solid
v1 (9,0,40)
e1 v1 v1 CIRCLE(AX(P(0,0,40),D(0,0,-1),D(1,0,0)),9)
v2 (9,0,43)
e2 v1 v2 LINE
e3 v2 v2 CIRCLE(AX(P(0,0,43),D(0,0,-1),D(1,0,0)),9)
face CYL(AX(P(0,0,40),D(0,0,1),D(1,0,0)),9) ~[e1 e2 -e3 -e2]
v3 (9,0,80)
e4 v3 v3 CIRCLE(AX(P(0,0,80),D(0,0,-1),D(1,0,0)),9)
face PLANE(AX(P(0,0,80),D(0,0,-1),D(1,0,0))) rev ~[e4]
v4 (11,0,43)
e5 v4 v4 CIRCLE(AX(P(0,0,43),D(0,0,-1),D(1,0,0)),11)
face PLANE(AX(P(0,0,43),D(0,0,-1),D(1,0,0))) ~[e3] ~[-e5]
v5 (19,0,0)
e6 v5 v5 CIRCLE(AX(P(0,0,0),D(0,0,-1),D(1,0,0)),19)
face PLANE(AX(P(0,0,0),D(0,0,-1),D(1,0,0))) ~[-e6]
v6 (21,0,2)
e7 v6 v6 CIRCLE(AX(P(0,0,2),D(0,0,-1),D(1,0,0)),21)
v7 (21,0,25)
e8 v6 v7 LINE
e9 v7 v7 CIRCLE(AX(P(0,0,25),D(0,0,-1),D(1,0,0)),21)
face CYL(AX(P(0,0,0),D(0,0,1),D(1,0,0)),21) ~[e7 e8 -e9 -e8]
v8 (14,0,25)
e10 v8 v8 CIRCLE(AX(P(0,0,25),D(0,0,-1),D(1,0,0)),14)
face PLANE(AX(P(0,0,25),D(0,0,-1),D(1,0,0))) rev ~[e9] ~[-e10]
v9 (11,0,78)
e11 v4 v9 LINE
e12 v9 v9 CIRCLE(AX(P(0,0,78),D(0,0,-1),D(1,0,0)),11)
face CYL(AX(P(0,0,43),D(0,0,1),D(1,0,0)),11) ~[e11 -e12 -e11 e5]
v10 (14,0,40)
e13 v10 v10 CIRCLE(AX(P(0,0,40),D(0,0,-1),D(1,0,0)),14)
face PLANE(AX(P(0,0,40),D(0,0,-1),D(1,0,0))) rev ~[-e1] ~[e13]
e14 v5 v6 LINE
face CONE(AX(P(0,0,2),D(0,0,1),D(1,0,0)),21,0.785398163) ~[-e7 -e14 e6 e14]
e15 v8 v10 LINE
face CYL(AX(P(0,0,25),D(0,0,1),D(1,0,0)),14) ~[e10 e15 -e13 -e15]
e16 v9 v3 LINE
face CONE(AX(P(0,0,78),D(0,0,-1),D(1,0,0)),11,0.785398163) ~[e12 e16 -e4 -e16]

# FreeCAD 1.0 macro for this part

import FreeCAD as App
import Part
import Sketcher
from FreeCAD import Vector


def edges_at(feature, points):
    """Names of the edges that pass closest to the given points."""
    edges = feature.Shape.Edges
    near = lambda p: min(range(len(edges)), key=lambda i: edges[i].distToShape(Part.Vertex(*p))[0])
    return sorted({f"Edge{near(p) + 1}" for p in points})


def add_polygon(sketch, points):
    """Adds a closed chain of lines whose ends are joined by coincident constraints."""
    first, n = sketch.GeometryCount, len(points)
    for a, b in zip(points, points[1:] + points[:1]):
        sketch.addGeometry(Part.LineSegment(App.Vector(*a, 0), App.Vector(*b, 0)), False)
    for i in range(n):
        sketch.addConstraint(Sketcher.Constraint("Coincident", first + i, 2, first + (i + 1) % n, 1))

doc = App.newDocument("Part")
body = doc.addObject("PartDesign::Body", "Body")

sketch1 = doc.addObject("Sketcher::SketchObject", "Sketch")
body.addObject(sketch1)
sketch1.AttachmentSupport = (doc.XZ_Plane, [""])
sketch1.MapMode = "FlatFace"
add_polygon(sketch1, [(0, 80), (0, 0), (21, 0), (21, 25), (14, 25), (14, 40), (9, 40), (9, 43), (11, 43), (11, 80)])
sketch1.addConstraint([
    Sketcher.Constraint("Vertical", 0),
    Sketcher.Constraint("Horizontal", 1),
    Sketcher.Constraint("Vertical", 2),
    Sketcher.Constraint("Horizontal", 3),
    Sketcher.Constraint("Vertical", 4),
    Sketcher.Constraint("Horizontal", 5),
    Sketcher.Constraint("Vertical", 6),
    Sketcher.Constraint("Horizontal", 7),
    Sketcher.Constraint("Vertical", 8),
    Sketcher.Constraint("Horizontal", 9),
    Sketcher.Constraint("Coincident", 0, 2, -1, 1),
    Sketcher.Constraint("DistanceX", 1, 1, 1, 2, 21.0),
    Sketcher.Constraint("DistanceX", 3, 2, 3, 1, 7.0),
    Sketcher.Constraint("DistanceX", 5, 2, 5, 1, 5.0),
    Sketcher.Constraint("DistanceX", 7, 1, 7, 2, 2.0),
    Sketcher.Constraint("DistanceY", 0, 2, 0, 1, 80.0),
    Sketcher.Constraint("DistanceY", 2, 1, 2, 2, 25.0),
    Sketcher.Constraint("DistanceY", 4, 1, 4, 2, 15.0),
    Sketcher.Constraint("DistanceY", 6, 1, 6, 2, 3.0),
])
revolution = doc.addObject("PartDesign::Revolution", "Revolution")
body.addObject(revolution)
revolution.Profile = sketch1
revolution.ReferenceAxis = (sketch1, ["V_Axis"])
revolution.Angle = 360
doc.recompute()

chamfer = doc.addObject("PartDesign::Chamfer", "Chamfer")
body.addObject(chamfer)
chamfer.Base = (revolution, edges_at(revolution, [(-11, 0, 80), (-21, 0, 0)]))
chamfer.ChamferType = "Two distances"
chamfer.Size = 2
chamfer.Size2 = 2

doc.recompute()
